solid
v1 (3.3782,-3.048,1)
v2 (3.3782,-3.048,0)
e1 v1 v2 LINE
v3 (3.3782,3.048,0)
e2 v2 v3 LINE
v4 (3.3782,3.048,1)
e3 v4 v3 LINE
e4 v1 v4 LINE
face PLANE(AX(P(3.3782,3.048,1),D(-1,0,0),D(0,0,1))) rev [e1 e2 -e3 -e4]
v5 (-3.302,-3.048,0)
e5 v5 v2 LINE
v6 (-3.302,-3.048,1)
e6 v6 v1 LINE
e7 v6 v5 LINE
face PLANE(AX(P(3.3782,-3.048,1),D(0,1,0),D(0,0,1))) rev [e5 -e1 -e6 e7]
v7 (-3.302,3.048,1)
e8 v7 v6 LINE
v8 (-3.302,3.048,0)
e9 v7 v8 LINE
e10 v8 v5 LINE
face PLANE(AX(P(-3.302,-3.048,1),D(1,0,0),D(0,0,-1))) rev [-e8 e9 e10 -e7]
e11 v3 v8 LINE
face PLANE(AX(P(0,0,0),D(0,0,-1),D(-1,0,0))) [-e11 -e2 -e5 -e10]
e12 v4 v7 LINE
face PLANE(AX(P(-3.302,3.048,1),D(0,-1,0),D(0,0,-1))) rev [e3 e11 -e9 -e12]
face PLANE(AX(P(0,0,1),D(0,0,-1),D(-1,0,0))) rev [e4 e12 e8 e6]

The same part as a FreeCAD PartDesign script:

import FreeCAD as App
import Part
import Sketcher
Q = App.Units.Quantity


def add_polygon(sketch, points):
    """Adds a closed chain of lines whose ends are joined by coincident constraints."""
    first, n = sketch.GeometryCount, len(points)
    for a, b in zip(points, points[1:] + points[:1]):
        sketch.addGeometry(Part.LineSegment(App.Vector(*a, 0), App.Vector(*b, 0)), False)
    for i in range(n):
        sketch.addConstraint(Sketcher.Constraint("Coincident", first + i, 2, first + (i + 1) % n, 1))

doc = App.newDocument("Part")
params = doc.addObject("Spreadsheet::Sheet", "Params")
for row, (alias, value) in enumerate([
    ("sketch1_height", "0.24 in"),
    ("sketch1_width", "0.263 in"),
    ("pad1_length", "1 mm"),
], start=1):
    params.set(f"A{row}", alias)
    params.set(f"B{row}", "=" + value)
    params.setAlias(f"B{row}", alias)

body = doc.addObject("PartDesign::Body", "Body")

# Sketch on XY plane
sketch1 = body.newObject("Sketcher::SketchObject", "Sketch")
sketch1.AttachmentSupport = (doc.getObject("XY_Plane"), [""])
sketch1.MapMode = "FlatFace"
add_polygon(sketch1, [(-3, 3), (-3, -3), (3, -3), (3, 3)])  # lines 0-3
sketch1.addConstraint([
    Sketcher.Constraint("Vertical", 0),
    Sketcher.Constraint("Horizontal", 1),
    Sketcher.Constraint("Vertical", 2),
    Sketcher.Constraint("Horizontal", 3),
    Sketcher.Constraint("DistanceY", 0, 2, 0, 1, Q("0.24 in")),
    Sketcher.Constraint("DistanceX", 1, 1, 1, 2, Q("0.263 in")),
    Sketcher.Constraint("DistanceX", 0, 2, -1, 1, Q("0.13 in")),
    Sketcher.Constraint("DistanceY", 0, 2, -1, 1, Q("0.12 in")),
])
sketch1.setExpression("Constraints[8]", "Params.sketch1_height")
sketch1.setExpression("Constraints[9]", "Params.sketch1_width")
pad1 = body.newObject("PartDesign::Pad", "Pad")
pad1.Profile = sketch1
pad1.setExpression("Length", "Params.pad1_length")

doc.recompute()
